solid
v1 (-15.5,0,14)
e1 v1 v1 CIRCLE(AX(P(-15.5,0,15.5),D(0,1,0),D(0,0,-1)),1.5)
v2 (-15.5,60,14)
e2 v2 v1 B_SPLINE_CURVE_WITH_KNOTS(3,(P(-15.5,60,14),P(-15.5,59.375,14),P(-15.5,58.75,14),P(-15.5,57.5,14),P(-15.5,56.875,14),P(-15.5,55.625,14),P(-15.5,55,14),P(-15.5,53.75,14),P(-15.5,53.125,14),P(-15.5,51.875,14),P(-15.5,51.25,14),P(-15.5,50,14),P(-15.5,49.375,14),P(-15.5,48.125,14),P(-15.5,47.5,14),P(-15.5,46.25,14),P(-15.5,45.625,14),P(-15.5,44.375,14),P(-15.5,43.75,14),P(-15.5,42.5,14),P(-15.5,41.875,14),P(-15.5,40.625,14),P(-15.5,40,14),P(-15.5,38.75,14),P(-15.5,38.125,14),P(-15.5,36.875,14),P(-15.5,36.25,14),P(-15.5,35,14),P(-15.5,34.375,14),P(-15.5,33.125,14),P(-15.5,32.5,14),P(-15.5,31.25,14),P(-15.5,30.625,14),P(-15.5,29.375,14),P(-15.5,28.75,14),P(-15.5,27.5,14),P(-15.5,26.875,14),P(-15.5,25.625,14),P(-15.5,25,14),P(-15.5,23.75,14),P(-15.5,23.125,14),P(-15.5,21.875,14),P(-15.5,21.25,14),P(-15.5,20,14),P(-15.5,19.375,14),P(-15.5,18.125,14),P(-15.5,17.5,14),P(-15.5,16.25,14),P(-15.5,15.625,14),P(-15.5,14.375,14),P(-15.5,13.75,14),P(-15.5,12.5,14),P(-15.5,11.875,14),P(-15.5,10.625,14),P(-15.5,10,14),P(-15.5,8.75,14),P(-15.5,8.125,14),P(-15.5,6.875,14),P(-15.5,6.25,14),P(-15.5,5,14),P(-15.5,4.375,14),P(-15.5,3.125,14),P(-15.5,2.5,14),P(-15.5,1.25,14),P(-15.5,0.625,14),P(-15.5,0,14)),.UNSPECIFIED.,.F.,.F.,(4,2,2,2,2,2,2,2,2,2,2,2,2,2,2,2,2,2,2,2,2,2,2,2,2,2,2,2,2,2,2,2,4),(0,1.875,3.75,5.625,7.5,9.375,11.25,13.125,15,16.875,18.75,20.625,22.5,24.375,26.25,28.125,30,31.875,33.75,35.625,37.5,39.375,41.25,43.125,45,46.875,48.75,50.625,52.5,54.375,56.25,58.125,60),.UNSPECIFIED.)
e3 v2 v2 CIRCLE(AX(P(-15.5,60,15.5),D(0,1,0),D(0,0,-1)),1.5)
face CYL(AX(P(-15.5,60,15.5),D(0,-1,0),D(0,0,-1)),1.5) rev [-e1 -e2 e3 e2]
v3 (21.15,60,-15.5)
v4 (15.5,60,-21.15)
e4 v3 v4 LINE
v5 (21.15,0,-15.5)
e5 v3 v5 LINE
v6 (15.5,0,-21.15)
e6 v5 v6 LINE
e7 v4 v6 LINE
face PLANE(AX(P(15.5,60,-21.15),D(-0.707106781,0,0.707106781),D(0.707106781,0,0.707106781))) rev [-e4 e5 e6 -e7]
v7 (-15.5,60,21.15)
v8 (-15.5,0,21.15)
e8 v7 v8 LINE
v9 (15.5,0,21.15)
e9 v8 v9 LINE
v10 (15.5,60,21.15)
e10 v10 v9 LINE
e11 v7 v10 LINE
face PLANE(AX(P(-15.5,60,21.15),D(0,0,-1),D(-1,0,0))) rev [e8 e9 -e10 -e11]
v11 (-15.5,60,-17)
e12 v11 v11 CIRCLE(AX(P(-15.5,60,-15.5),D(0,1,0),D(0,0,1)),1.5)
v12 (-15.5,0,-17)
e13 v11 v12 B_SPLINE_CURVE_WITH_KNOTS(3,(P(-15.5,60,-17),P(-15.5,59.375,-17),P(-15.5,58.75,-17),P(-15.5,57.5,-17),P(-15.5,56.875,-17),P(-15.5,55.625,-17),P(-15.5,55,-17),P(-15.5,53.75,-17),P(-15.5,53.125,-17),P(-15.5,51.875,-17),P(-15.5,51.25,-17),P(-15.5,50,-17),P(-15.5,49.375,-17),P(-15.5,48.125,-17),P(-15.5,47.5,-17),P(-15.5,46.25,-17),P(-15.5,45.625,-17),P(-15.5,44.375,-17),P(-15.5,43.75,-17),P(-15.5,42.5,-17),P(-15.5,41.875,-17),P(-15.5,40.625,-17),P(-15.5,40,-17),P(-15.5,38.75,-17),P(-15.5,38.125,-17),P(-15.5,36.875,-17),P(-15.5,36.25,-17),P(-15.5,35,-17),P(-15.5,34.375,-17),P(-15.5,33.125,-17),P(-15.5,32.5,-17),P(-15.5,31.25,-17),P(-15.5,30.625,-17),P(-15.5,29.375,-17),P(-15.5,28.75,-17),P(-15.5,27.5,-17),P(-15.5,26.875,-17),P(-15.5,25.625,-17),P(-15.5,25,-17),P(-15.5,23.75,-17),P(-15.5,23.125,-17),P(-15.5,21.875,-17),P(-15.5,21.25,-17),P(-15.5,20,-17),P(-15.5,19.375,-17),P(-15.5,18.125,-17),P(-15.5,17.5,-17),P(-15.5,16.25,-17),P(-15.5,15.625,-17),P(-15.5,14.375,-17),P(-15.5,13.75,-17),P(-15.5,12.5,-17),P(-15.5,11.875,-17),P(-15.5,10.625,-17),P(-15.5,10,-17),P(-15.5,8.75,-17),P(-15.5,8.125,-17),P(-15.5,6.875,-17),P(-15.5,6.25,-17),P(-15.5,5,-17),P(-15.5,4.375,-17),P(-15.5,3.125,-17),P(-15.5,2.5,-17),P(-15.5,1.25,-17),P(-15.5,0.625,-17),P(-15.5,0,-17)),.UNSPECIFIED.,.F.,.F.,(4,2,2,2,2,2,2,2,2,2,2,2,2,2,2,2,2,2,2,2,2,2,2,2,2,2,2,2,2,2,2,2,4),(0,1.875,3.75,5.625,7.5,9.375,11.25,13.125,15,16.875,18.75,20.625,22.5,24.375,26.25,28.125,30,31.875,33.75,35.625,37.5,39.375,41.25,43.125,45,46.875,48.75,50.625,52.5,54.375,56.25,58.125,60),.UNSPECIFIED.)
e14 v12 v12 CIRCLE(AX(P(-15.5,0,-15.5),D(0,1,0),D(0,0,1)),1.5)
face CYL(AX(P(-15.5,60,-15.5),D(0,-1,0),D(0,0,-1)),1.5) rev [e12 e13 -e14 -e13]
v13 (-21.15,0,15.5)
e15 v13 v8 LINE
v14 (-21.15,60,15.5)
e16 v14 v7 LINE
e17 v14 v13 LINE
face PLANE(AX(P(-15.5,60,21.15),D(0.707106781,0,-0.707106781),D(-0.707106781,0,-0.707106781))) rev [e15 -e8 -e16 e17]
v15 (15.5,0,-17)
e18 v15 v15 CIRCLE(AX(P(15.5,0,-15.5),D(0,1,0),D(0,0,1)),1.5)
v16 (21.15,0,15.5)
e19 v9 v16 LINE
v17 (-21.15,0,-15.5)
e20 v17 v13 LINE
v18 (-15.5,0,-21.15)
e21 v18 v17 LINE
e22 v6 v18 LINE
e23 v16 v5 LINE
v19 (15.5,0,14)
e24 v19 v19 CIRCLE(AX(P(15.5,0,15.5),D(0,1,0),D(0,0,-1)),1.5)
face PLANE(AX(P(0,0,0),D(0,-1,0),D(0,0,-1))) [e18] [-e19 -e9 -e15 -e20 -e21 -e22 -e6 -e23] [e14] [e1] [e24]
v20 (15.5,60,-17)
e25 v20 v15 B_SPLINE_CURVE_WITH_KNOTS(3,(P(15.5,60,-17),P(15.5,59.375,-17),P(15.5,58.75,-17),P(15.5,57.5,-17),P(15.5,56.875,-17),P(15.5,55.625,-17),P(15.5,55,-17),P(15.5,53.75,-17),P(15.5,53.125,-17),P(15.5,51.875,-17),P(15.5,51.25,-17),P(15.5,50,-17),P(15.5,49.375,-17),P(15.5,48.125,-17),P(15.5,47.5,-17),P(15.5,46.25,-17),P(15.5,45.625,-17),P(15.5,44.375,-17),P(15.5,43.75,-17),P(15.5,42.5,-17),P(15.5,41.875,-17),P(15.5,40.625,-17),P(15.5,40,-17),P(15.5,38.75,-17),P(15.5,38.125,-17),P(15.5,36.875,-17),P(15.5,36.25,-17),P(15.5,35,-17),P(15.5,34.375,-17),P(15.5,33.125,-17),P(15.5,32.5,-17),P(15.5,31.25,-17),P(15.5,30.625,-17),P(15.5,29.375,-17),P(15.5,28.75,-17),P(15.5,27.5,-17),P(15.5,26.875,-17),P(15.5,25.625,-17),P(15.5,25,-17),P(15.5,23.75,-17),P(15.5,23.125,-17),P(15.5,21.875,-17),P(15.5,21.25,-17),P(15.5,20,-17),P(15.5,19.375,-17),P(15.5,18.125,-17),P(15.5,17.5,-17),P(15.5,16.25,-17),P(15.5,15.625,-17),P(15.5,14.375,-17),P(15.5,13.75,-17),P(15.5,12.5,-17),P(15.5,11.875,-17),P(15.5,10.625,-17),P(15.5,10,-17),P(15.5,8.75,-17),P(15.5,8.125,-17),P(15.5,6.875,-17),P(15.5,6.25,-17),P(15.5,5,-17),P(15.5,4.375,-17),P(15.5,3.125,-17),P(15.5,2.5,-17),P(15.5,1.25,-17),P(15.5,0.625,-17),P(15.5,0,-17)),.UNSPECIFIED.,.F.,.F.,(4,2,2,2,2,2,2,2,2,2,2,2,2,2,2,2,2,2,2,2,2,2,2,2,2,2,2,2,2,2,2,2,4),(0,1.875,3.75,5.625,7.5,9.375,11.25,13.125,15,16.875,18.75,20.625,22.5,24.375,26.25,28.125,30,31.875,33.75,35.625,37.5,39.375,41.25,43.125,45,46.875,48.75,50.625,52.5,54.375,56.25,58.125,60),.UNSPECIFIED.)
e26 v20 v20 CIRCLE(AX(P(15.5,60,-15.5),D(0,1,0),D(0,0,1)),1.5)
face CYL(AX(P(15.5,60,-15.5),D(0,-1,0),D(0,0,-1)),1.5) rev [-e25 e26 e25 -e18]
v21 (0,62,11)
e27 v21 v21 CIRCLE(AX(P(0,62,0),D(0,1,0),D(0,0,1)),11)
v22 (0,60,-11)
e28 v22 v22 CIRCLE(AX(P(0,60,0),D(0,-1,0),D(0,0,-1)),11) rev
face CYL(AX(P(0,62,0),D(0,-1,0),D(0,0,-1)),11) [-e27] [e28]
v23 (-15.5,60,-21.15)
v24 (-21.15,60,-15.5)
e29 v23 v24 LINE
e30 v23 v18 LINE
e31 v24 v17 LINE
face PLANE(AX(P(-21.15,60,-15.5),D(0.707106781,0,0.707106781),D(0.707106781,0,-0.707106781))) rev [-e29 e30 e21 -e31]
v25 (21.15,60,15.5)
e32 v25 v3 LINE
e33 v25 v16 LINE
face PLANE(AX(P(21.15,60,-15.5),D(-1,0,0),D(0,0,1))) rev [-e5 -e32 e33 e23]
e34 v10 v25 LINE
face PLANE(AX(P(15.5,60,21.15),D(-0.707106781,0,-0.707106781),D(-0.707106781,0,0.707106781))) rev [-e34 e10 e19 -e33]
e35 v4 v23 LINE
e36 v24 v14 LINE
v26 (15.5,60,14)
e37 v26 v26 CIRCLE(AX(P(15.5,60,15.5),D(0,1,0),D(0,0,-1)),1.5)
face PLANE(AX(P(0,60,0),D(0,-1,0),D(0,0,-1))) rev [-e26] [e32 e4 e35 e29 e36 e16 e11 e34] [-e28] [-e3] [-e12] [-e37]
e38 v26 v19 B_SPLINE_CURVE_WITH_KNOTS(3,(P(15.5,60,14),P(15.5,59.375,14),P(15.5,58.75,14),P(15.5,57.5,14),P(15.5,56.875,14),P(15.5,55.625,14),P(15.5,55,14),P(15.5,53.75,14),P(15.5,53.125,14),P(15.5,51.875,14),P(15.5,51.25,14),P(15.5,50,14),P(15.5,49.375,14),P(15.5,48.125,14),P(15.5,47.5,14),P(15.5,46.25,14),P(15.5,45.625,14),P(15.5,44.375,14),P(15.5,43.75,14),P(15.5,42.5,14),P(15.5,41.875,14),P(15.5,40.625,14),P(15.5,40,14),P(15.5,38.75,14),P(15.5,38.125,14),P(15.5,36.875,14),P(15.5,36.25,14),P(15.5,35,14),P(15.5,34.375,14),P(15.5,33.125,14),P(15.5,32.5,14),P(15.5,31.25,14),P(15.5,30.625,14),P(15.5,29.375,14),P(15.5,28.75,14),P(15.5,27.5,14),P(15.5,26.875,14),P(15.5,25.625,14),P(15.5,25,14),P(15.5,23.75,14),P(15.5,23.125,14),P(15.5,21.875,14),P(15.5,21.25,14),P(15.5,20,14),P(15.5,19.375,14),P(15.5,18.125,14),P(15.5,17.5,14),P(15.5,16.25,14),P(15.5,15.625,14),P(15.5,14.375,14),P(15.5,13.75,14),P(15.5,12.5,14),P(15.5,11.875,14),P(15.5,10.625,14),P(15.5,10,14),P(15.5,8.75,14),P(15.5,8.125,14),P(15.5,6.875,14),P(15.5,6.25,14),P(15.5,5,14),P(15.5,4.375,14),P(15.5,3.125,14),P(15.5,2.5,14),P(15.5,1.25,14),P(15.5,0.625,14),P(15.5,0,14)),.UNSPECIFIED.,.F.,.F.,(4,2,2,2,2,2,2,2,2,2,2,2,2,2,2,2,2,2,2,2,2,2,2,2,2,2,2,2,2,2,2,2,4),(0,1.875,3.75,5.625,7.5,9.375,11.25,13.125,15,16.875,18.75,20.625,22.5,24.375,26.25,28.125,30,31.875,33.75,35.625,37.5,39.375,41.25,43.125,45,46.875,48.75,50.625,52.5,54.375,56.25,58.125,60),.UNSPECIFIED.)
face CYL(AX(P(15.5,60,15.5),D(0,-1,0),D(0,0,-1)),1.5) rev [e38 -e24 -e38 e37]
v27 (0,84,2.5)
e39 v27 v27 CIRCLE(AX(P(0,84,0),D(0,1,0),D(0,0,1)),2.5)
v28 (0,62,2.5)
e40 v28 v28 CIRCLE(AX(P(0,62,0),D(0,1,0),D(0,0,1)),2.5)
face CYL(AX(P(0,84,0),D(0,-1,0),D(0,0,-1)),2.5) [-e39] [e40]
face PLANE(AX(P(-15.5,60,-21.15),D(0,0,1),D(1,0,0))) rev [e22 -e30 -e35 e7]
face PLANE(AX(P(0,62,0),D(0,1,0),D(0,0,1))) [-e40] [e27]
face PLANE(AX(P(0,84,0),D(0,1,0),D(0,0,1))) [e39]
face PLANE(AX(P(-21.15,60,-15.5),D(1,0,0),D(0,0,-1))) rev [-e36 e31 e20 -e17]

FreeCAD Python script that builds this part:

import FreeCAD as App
import Part
import Sketcher
Q = App.Units.Quantity

doc = App.newDocument("Part")
body = doc.addObject("PartDesign::Body", "Body")

# Sketch on XZ plane
sketch1 = body.newObject("Sketcher::SketchObject", "Sketch")
sketch1.AttachmentSupport = (doc.getObject("XZ_Plane"), [""])
sketch1.MapMode = "FlatFace"
sketch1.addGeometry(Part.LineSegment(App.Vector(15.5, -21.1, 0), App.Vector(-15.5, -21.1, 0)), False)
sketch1.addGeometry(Part.LineSegment(App.Vector(-15.5, -21.1, 0), App.Vector(-21.1, -15.5, 0)), False)
sketch1.addGeometry(Part.LineSegment(App.Vector(-21.1, -15.5, 0), App.Vector(-21.1, 15.5, 0)), False)
sketch1.addGeometry(Part.LineSegment(App.Vector(-21.1, 15.5, 0), App.Vector(-15.5, 21.1, 0)), False)
sketch1.addGeometry(Part.LineSegment(App.Vector(-15.5, 21.1, 0), App.Vector(15.5, 21.1, 0)), False)
sketch1.addGeometry(Part.LineSegment(App.Vector(15.5, 21.1, 0), App.Vector(21.1, 15.5, 0)), False)
sketch1.addGeometry(Part.LineSegment(App.Vector(21.1, 15.5, 0), App.Vector(21.1, -15.5, 0)), False)
sketch1.addGeometry(Part.LineSegment(App.Vector(21.1, -15.5, 0), App.Vector(15.5, -21.1, 0)), False)
sketch1.addGeometry(Part.Circle(App.Vector(15.5, 15.5, 0), App.Vector(0, 0, 1), 1.5), False)
sketch1.addGeometry(Part.Circle(App.Vector(-15.5, 15.5, 0), App.Vector(0, 0, 1), 1.5), False)
sketch1.addGeometry(Part.Circle(App.Vector(15.5, -15.5, 0), App.Vector(0, 0, 1), 1.5), False)
sketch1.addGeometry(Part.Circle(App.Vector(-15.5, -15.5, 0), App.Vector(0, 0, 1), 1.5), False)
sketch1.addConstraint(Sketcher.Constraint("Coincident", 0, 2, 1, 1))
sketch1.addConstraint(Sketcher.Constraint("Coincident", 1, 2, 2, 1))
sketch1.addConstraint(Sketcher.Constraint("Coincident", 2, 2, 3, 1))
sketch1.addConstraint(Sketcher.Constraint("Coincident", 3, 2, 4, 1))
sketch1.addConstraint(Sketcher.Constraint("Coincident", 4, 2, 5, 1))
sketch1.addConstraint(Sketcher.Constraint("Coincident", 5, 2, 6, 1))
sketch1.addConstraint(Sketcher.Constraint("Coincident", 6, 2, 7, 1))
sketch1.addConstraint(Sketcher.Constraint("Coincident", 7, 2, 0, 1))
sketch1.addConstraint(Sketcher.Constraint("Horizontal", 0))
sketch1.addConstraint(Sketcher.Constraint("Vertical", 2))
sketch1.addConstraint(Sketcher.Constraint("Horizontal", 4))
sketch1.addConstraint(Sketcher.Constraint("Vertical", 6))
sketch1.addConstraint(Sketcher.Constraint("Equal", 8, 9))
sketch1.addConstraint(Sketcher.Constraint("Equal", 9, 10))
sketch1.addConstraint(Sketcher.Constraint("Equal", 10, 11))
sketch1.addConstraint(Sketcher.Constraint("Symmetric", 9, 3, 10, 3, -1, 1))
sketch1.addConstraint(Sketcher.Constraint("Symmetric", 8, 3, 11, 3, -1, 1))
sketch1.addConstraint(Sketcher.Constraint("Symmetric", 0, 2, 4, 2, -1, 1))
sketch1.addConstraint(Sketcher.Constraint("Symmetric", 1, 2, 5, 2, -1, 1))
sketch1.addConstraint(Sketcher.Constraint("Symmetric", 8, 3, 9, 3, -2))
sketch1.addConstraint(Sketcher.Constraint("Perpendicular", 1, 3))
sketch1.addConstraint(Sketcher.Constraint("Perpendicular", 5, 7))
sketch1.addConstraint(Sketcher.Constraint("Horizontal", 11, 3, 1, 2))
sketch1.addConstraint(Sketcher.Constraint("Horizontal", 9, 3, 2, 2))
sketch1.addConstraint(Sketcher.Constraint("Horizontal", 1, 2, 6, 2))
sketch1.addConstraint(Sketcher.Constraint("Vertical", 11, 3, 0, 2))
sketch1.addConstraint(Sketcher.Constraint("Vertical", 0, 2, 3, 2))
sketch1.addConstraint(Sketcher.Constraint("Equal", 4, 2))
sketch1.addConstraint(Sketcher.Constraint("Diameter", 8, Q("3 mm")))
sketch1.addConstraint(Sketcher.Constraint("DistanceX", 0, 2, 0, 1, Q("31 mm")))
sketch1.addConstraint(Sketcher.Constraint("DistanceY", 0, 2, -1, 1, Q("21.15 mm")))
pad1 = body.newObject("PartDesign::Pad", "Pad")
pad1.Profile = sketch1
pad1.Length = 60
pad1.Reversed = True

# Sketch on XZ plane
sketch2 = body.newObject("Sketcher::SketchObject", "Sketch001")
sketch2.AttachmentSupport = (doc.getObject("XZ_Plane"), [""])
sketch2.MapMode = "FlatFace"
sketch2.AttachmentOffset = App.Placement(App.Vector(0, 0, -60), App.Rotation())
sketch2.addGeometry(Part.Circle(App.Vector(0, 0, 0), App.Vector(0, 0, 1), 11), False)
sketch2.addConstraint(Sketcher.Constraint("Coincident", 0, 3, -1, 1))
sketch2.addConstraint(Sketcher.Constraint("Diameter", 0, Q("22 mm")))
pad2 = body.newObject("PartDesign::Pad", "Pad001")
pad2.Profile = sketch2
pad2.Length = 2
pad2.Reversed = True

# Sketch on XZ plane
sketch3 = body.newObject("Sketcher::SketchObject", "Sketch002")
sketch3.AttachmentSupport = (doc.getObject("XZ_Plane"), [""])
sketch3.MapMode = "FlatFace"
sketch3.AttachmentOffset = App.Placement(App.Vector(0, 0, -62), App.Rotation())
sketch3.addGeometry(Part.Circle(App.Vector(0, 0, 0), App.Vector(0, 0, 1), 2.5), False)
sketch3.addConstraint(Sketcher.Constraint("Coincident", 0, 3, -1, 1))
sketch3.addConstraint(Sketcher.Constraint("Diameter", 0, Q("5 mm")))
pad3 = body.newObject("PartDesign::Pad", "Pad002")
pad3.Profile = sketch3
pad3.Length = 22
pad3.Reversed = True

doc.recompute()
